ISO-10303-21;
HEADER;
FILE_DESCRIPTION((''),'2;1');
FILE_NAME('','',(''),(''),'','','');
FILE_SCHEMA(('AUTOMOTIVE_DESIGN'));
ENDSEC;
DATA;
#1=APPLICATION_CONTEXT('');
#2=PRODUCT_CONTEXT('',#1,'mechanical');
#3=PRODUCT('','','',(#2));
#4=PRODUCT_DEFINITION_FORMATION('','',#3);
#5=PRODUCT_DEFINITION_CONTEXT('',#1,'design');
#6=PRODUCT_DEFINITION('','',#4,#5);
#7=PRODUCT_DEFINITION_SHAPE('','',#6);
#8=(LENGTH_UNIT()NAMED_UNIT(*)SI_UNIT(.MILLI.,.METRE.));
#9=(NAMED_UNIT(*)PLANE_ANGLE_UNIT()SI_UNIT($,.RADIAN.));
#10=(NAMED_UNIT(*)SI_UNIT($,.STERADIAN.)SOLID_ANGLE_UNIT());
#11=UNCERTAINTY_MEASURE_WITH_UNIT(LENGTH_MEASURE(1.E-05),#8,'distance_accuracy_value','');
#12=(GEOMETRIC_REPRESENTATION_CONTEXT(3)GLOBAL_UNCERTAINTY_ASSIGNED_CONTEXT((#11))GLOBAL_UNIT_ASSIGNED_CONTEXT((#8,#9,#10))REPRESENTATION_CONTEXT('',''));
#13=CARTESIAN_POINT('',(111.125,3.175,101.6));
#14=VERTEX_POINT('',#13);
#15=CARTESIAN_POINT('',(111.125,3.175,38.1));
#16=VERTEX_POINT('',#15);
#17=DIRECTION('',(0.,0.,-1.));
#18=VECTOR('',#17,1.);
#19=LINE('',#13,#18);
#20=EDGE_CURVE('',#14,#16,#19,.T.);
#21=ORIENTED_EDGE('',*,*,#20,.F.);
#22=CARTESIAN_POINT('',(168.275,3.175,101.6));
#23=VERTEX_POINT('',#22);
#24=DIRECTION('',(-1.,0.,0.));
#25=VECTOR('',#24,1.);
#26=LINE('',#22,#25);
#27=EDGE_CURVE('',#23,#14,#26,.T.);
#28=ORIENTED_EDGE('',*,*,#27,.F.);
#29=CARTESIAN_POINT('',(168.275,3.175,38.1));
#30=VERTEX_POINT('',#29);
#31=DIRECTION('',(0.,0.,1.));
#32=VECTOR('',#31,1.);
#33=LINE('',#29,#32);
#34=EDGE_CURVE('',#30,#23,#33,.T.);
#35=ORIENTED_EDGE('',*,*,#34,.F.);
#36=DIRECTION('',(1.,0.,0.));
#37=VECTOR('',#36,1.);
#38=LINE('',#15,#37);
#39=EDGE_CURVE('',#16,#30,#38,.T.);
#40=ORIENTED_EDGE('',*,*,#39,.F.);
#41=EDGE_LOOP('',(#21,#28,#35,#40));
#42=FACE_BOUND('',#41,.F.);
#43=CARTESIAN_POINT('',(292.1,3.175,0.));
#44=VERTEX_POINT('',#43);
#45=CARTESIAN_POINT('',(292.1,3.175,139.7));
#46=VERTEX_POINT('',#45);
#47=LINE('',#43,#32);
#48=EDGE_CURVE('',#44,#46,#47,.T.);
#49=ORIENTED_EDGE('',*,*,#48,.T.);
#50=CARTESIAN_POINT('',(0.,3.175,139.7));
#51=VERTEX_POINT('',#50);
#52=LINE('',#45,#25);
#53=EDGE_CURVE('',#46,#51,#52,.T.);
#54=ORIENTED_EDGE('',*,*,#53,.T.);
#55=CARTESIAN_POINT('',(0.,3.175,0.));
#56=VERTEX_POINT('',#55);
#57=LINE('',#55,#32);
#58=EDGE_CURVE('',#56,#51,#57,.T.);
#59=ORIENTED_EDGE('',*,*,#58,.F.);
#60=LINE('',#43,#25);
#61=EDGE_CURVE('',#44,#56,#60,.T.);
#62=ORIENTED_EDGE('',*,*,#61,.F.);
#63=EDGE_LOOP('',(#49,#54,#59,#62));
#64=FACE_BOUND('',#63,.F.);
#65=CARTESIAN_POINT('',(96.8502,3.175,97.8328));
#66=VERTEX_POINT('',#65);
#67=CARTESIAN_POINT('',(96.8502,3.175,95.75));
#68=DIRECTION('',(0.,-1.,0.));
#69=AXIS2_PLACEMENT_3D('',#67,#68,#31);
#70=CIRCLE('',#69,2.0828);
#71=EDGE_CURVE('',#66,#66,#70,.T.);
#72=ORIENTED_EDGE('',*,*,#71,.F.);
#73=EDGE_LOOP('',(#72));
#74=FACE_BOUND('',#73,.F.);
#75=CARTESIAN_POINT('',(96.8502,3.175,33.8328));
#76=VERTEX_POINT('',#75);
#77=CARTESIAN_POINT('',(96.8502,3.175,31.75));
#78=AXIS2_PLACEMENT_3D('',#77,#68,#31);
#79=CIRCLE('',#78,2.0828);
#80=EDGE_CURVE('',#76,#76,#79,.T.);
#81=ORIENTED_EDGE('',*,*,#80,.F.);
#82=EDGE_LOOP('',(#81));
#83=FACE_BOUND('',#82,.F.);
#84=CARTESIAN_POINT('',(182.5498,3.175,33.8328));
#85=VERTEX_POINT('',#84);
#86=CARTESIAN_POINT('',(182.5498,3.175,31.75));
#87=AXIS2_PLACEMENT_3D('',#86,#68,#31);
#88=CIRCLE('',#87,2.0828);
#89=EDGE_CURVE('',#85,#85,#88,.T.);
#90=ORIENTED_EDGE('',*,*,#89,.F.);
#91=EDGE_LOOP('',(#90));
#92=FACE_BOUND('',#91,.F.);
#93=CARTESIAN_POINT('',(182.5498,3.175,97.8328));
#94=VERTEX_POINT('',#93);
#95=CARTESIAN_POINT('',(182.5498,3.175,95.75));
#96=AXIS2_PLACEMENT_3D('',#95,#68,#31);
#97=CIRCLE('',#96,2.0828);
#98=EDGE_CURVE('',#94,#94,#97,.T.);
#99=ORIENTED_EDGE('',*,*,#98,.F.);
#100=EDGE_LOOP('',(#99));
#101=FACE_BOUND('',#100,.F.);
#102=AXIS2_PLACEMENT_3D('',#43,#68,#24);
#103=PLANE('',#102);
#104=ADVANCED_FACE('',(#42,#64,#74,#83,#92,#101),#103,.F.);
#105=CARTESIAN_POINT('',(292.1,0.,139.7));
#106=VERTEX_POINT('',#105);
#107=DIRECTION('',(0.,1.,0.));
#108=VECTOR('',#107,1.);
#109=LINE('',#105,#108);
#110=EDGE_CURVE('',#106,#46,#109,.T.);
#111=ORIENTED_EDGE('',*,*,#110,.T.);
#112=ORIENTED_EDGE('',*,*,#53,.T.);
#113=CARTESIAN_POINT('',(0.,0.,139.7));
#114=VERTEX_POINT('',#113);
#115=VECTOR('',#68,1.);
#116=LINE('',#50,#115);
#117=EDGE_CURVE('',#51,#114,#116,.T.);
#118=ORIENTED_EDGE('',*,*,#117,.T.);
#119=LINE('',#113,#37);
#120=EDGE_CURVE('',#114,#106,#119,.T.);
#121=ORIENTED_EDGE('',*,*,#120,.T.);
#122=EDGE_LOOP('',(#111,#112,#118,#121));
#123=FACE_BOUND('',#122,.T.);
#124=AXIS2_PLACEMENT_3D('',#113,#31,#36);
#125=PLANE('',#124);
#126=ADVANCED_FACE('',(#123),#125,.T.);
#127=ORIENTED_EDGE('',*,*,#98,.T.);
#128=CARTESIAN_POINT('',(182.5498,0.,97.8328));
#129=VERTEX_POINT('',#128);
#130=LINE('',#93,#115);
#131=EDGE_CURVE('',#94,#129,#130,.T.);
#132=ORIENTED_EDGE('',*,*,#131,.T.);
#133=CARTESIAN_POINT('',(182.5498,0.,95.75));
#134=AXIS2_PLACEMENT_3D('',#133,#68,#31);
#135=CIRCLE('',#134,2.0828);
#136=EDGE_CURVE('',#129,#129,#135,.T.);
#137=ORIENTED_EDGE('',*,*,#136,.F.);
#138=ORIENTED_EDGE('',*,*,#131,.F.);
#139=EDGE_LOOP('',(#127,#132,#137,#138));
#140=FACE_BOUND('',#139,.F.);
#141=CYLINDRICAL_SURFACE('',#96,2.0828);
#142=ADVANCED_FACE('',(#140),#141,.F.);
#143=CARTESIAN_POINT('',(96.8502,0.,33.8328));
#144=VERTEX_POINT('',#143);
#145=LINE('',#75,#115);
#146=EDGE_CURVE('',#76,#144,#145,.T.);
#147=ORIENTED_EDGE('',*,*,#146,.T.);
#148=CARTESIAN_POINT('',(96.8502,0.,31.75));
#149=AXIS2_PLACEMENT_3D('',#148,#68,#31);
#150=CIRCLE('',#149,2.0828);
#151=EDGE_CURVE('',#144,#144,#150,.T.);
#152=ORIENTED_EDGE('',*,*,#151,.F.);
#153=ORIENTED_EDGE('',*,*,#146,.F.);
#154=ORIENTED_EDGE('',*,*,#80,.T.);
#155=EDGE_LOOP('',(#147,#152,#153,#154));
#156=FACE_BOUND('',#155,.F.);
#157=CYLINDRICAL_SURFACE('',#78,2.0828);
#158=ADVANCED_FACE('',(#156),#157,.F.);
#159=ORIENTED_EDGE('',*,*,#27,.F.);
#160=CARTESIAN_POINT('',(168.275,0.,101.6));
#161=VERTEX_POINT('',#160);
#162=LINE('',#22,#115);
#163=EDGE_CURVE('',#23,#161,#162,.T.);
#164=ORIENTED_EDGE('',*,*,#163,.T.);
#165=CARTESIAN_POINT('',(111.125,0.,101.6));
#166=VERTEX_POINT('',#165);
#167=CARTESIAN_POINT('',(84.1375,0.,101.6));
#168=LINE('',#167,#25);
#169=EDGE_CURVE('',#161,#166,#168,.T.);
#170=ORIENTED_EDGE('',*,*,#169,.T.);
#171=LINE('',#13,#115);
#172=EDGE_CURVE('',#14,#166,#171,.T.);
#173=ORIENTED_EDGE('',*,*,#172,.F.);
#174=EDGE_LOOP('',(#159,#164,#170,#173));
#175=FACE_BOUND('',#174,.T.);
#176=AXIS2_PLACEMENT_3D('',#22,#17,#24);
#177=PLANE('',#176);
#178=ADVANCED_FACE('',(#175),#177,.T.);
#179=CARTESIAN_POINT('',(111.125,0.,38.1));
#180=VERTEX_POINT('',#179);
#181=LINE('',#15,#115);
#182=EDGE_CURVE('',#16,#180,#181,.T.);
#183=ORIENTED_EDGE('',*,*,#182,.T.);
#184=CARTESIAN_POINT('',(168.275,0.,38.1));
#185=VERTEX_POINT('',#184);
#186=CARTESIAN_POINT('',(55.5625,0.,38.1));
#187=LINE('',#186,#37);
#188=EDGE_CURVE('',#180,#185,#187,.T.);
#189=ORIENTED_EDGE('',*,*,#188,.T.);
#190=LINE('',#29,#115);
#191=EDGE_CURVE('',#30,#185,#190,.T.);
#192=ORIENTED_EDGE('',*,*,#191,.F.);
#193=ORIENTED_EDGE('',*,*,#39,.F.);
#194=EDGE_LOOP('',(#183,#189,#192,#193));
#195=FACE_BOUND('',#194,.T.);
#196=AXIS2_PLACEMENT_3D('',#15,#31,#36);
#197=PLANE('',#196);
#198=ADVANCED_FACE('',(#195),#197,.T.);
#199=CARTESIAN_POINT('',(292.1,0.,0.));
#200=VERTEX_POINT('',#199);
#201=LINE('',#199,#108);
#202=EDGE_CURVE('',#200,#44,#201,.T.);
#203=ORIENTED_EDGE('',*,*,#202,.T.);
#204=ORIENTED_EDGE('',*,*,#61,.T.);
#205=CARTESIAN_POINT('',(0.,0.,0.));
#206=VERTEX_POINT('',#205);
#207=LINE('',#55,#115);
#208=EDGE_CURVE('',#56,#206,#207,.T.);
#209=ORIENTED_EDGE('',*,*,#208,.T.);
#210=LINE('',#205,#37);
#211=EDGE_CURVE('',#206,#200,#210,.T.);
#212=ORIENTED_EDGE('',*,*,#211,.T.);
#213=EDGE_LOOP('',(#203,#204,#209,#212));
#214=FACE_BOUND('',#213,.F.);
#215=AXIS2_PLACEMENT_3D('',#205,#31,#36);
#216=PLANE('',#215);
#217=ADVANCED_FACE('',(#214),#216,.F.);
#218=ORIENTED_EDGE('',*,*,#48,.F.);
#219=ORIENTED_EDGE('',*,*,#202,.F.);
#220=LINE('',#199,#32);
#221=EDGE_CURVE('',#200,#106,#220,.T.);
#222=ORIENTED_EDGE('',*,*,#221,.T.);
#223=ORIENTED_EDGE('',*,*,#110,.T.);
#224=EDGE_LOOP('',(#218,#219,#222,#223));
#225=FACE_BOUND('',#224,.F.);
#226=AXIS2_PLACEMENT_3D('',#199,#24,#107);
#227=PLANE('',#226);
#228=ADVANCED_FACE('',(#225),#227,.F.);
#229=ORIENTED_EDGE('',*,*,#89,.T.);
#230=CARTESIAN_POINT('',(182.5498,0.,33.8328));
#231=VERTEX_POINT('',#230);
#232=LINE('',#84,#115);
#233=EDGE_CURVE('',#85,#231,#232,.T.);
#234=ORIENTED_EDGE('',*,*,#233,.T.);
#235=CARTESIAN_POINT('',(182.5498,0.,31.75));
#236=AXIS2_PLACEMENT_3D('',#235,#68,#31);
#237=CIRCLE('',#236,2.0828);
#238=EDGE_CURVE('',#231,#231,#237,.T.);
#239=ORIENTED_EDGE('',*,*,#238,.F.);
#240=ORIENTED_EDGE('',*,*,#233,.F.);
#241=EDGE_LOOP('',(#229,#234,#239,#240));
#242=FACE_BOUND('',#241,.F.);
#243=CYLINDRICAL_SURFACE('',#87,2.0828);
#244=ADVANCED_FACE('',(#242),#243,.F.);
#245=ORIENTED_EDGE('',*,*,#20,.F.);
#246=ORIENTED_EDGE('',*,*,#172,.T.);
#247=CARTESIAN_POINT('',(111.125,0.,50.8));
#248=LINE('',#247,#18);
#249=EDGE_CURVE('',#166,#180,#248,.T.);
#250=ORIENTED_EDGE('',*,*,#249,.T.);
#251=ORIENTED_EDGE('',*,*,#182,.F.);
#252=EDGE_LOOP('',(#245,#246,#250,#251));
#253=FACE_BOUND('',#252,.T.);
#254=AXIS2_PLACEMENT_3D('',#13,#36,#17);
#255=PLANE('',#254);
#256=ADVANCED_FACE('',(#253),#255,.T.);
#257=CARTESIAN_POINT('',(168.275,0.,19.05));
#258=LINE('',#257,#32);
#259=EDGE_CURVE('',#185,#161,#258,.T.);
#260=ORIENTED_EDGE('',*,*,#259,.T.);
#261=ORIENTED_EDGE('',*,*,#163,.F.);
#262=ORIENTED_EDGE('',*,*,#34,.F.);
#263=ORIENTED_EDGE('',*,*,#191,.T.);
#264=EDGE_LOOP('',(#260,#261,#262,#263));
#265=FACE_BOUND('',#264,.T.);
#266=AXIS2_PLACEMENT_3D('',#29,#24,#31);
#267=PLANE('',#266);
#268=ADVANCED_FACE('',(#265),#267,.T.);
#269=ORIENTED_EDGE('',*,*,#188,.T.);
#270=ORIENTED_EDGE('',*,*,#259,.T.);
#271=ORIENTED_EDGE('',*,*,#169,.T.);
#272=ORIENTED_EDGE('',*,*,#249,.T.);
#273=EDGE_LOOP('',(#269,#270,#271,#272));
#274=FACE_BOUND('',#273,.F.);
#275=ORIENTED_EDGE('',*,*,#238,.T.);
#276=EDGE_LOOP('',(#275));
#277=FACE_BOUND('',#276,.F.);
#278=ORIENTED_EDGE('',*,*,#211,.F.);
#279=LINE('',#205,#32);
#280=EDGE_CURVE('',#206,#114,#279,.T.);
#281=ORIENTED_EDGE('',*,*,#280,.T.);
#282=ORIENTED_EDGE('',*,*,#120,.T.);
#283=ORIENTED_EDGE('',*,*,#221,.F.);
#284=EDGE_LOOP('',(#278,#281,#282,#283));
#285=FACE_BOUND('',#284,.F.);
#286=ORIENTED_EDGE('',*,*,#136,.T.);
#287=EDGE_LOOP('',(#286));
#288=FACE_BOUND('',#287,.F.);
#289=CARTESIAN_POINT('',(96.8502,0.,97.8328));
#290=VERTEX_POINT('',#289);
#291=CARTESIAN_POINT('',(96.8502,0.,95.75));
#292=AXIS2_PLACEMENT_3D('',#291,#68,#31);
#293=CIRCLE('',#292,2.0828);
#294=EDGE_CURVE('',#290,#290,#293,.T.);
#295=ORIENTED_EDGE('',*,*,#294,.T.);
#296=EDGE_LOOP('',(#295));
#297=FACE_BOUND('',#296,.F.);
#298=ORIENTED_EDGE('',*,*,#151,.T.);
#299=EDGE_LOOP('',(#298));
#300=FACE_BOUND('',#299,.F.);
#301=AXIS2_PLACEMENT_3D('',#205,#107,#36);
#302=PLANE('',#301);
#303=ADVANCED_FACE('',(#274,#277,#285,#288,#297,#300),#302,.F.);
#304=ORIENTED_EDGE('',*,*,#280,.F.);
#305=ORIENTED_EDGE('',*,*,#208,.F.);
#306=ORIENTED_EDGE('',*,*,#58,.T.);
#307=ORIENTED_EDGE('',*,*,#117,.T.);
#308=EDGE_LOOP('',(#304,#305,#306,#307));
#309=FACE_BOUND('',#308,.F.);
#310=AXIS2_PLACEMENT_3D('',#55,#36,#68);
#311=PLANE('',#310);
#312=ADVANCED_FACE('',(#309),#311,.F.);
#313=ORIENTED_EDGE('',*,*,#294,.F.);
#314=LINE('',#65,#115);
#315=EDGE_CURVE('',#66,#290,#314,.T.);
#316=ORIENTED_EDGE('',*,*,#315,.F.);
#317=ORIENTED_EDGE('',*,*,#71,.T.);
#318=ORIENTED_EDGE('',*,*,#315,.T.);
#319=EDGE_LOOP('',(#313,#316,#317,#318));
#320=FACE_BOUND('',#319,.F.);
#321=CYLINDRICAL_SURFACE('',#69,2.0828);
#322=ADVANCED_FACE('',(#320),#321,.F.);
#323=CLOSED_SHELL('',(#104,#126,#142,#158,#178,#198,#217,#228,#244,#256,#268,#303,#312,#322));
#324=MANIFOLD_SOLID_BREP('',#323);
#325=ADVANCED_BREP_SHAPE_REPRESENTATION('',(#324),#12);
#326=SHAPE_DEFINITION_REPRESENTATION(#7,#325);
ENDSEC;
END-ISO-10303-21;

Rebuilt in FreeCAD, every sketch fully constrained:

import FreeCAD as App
import Part
import Sketcher
from FreeCAD import Vector
Q = App.Units.Quantity


def add_polygon(sketch, points):
    """Adds a closed chain of lines whose ends are joined by coincident constraints."""
    first, n = sketch.GeometryCount, len(points)
    for a, b in zip(points, points[1:] + points[:1]):
        sketch.addGeometry(Part.LineSegment(App.Vector(*a, 0), App.Vector(*b, 0)), False)
    for i in range(n):
        sketch.addConstraint(Sketcher.Constraint("Coincident", first + i, 2, first + (i + 1) % n, 1))

doc = App.newDocument("Part")
body = doc.addObject("PartDesign::Body", "Body")

sketch1 = doc.addObject("Sketcher::SketchObject", "Sketch")
body.addObject(sketch1)
sketch1.AttachmentSupport = (doc.XY_Plane, [""])
sketch1.MapMode = "FlatFace"
add_polygon(sketch1, [(0, 3.175), (0, 0), (292.1, 0), (292.1, 3.175)])
sketch1.addConstraint([
    Sketcher.Constraint("Vertical", 0),
    Sketcher.Constraint("Horizontal", 1),
    Sketcher.Constraint("Vertical", 2),
    Sketcher.Constraint("Horizontal", 3),
    Sketcher.Constraint("Coincident", 0, 2, -1, 1),
    Sketcher.Constraint("DistanceX", 1, 1, 1, 2, Q("11.5 in")),
    Sketcher.Constraint("DistanceY", 0, 2, 0, 1, Q("0.125 in")),
])
pad1 = doc.addObject("PartDesign::Pad", "Pad")
body.addObject(pad1)
pad1.Profile = sketch1
pad1.Length = Q("5.5 in")

sketch2 = doc.addObject("Sketcher::SketchObject", "Sketch001")
body.addObject(sketch2)
sketch2.AttachmentSupport = (doc.XZ_Plane, [""])
sketch2.MapMode = "FlatFace"
sketch2.AttachmentOffset = App.Placement(Vector(0, 0, -0.125 * 25.4), App.Rotation())
sketch2.addGeometry([
    Part.Circle(Vector(96.8502, 31.75, 0), Vector(0, 0, 1), 2.0828),
    Part.Circle(Vector(96.8502, 95.75, 0), Vector(0, 0, 1), 2.0828),
    Part.Circle(Vector(182.5498, 31.75, 0), Vector(0, 0, 1), 2.0828),
    Part.Circle(Vector(182.5498, 95.75, 0), Vector(0, 0, 1), 2.0828),
], False)
sketch2.addConstraint([
    Sketcher.Constraint("Equal", 0, 1),
    Sketcher.Constraint("Equal", 1, 2),
    Sketcher.Constraint("Equal", 2, 3),
    Sketcher.Constraint("Horizontal", 0, 3, 2, 3),
    Sketcher.Constraint("Horizontal", 1, 3, 3, 3),
    Sketcher.Constraint("Vertical", 0, 3, 1, 3),
    Sketcher.Constraint("Vertical", 2, 3, 3, 3),
    Sketcher.Constraint("Diameter", 0, Q("0.164 in")),
    Sketcher.Constraint("DistanceY", -1, 1, 0, 3, Q("1.25 in")),
    Sketcher.Constraint("DistanceX", -1, 1, 0, 3, Q("3.813 in")),
    Sketcher.Constraint("DistanceX", -1, 1, 2, 3, Q("7.187 in")),
    Sketcher.Constraint("DistanceY", -1, 1, 1, 3, 95.75),
])
doc.recompute()
hole = doc.addObject("PartDesign::Hole", "Hole")
body.addObject(hole)
hole.Profile = sketch2
hole.ThreadType = "None"
hole.Diameter = Q("0.164 in")
hole.DepthType = "ThroughAll"
hole.Reversed = True

sketch3 = doc.addObject("Sketcher::SketchObject", "Sketch002")
body.addObject(sketch3)
sketch3.AttachmentSupport = (doc.XZ_Plane, [""])
sketch3.MapMode = "FlatFace"
sketch3.AttachmentOffset = App.Placement(Vector(0, 0, -0.125 * 25.4), App.Rotation())
add_polygon(sketch3, [(168.275, 38.1), (111.125, 38.1), (111.125, 101.6), (168.275, 101.6)])
sketch3.addConstraint([
    Sketcher.Constraint("Horizontal", 0),
    Sketcher.Constraint("Vertical", 1),
    Sketcher.Constraint("Horizontal", 2),
    Sketcher.Constraint("Vertical", 3),
    Sketcher.Constraint("DistanceY", 1, 1, 1, 2, Q("2.5 in")),
    Sketcher.Constraint("DistanceX", 0, 2, 0, 1, Q("2.25 in")),
    Sketcher.Constraint("DistanceY", -1, 1, 0, 2, Q("1.5 in")),
    Sketcher.Constraint("DistanceX", -1, 1, 0, 2, Q("4.375 in")),
])
pocket1 = doc.addObject("PartDesign::Pocket", "Pocket")
body.addObject(pocket1)
pocket1.Profile = sketch3
pocket1.Length = Q("1 in")
pocket1.Reversed = True

doc.recompute()
